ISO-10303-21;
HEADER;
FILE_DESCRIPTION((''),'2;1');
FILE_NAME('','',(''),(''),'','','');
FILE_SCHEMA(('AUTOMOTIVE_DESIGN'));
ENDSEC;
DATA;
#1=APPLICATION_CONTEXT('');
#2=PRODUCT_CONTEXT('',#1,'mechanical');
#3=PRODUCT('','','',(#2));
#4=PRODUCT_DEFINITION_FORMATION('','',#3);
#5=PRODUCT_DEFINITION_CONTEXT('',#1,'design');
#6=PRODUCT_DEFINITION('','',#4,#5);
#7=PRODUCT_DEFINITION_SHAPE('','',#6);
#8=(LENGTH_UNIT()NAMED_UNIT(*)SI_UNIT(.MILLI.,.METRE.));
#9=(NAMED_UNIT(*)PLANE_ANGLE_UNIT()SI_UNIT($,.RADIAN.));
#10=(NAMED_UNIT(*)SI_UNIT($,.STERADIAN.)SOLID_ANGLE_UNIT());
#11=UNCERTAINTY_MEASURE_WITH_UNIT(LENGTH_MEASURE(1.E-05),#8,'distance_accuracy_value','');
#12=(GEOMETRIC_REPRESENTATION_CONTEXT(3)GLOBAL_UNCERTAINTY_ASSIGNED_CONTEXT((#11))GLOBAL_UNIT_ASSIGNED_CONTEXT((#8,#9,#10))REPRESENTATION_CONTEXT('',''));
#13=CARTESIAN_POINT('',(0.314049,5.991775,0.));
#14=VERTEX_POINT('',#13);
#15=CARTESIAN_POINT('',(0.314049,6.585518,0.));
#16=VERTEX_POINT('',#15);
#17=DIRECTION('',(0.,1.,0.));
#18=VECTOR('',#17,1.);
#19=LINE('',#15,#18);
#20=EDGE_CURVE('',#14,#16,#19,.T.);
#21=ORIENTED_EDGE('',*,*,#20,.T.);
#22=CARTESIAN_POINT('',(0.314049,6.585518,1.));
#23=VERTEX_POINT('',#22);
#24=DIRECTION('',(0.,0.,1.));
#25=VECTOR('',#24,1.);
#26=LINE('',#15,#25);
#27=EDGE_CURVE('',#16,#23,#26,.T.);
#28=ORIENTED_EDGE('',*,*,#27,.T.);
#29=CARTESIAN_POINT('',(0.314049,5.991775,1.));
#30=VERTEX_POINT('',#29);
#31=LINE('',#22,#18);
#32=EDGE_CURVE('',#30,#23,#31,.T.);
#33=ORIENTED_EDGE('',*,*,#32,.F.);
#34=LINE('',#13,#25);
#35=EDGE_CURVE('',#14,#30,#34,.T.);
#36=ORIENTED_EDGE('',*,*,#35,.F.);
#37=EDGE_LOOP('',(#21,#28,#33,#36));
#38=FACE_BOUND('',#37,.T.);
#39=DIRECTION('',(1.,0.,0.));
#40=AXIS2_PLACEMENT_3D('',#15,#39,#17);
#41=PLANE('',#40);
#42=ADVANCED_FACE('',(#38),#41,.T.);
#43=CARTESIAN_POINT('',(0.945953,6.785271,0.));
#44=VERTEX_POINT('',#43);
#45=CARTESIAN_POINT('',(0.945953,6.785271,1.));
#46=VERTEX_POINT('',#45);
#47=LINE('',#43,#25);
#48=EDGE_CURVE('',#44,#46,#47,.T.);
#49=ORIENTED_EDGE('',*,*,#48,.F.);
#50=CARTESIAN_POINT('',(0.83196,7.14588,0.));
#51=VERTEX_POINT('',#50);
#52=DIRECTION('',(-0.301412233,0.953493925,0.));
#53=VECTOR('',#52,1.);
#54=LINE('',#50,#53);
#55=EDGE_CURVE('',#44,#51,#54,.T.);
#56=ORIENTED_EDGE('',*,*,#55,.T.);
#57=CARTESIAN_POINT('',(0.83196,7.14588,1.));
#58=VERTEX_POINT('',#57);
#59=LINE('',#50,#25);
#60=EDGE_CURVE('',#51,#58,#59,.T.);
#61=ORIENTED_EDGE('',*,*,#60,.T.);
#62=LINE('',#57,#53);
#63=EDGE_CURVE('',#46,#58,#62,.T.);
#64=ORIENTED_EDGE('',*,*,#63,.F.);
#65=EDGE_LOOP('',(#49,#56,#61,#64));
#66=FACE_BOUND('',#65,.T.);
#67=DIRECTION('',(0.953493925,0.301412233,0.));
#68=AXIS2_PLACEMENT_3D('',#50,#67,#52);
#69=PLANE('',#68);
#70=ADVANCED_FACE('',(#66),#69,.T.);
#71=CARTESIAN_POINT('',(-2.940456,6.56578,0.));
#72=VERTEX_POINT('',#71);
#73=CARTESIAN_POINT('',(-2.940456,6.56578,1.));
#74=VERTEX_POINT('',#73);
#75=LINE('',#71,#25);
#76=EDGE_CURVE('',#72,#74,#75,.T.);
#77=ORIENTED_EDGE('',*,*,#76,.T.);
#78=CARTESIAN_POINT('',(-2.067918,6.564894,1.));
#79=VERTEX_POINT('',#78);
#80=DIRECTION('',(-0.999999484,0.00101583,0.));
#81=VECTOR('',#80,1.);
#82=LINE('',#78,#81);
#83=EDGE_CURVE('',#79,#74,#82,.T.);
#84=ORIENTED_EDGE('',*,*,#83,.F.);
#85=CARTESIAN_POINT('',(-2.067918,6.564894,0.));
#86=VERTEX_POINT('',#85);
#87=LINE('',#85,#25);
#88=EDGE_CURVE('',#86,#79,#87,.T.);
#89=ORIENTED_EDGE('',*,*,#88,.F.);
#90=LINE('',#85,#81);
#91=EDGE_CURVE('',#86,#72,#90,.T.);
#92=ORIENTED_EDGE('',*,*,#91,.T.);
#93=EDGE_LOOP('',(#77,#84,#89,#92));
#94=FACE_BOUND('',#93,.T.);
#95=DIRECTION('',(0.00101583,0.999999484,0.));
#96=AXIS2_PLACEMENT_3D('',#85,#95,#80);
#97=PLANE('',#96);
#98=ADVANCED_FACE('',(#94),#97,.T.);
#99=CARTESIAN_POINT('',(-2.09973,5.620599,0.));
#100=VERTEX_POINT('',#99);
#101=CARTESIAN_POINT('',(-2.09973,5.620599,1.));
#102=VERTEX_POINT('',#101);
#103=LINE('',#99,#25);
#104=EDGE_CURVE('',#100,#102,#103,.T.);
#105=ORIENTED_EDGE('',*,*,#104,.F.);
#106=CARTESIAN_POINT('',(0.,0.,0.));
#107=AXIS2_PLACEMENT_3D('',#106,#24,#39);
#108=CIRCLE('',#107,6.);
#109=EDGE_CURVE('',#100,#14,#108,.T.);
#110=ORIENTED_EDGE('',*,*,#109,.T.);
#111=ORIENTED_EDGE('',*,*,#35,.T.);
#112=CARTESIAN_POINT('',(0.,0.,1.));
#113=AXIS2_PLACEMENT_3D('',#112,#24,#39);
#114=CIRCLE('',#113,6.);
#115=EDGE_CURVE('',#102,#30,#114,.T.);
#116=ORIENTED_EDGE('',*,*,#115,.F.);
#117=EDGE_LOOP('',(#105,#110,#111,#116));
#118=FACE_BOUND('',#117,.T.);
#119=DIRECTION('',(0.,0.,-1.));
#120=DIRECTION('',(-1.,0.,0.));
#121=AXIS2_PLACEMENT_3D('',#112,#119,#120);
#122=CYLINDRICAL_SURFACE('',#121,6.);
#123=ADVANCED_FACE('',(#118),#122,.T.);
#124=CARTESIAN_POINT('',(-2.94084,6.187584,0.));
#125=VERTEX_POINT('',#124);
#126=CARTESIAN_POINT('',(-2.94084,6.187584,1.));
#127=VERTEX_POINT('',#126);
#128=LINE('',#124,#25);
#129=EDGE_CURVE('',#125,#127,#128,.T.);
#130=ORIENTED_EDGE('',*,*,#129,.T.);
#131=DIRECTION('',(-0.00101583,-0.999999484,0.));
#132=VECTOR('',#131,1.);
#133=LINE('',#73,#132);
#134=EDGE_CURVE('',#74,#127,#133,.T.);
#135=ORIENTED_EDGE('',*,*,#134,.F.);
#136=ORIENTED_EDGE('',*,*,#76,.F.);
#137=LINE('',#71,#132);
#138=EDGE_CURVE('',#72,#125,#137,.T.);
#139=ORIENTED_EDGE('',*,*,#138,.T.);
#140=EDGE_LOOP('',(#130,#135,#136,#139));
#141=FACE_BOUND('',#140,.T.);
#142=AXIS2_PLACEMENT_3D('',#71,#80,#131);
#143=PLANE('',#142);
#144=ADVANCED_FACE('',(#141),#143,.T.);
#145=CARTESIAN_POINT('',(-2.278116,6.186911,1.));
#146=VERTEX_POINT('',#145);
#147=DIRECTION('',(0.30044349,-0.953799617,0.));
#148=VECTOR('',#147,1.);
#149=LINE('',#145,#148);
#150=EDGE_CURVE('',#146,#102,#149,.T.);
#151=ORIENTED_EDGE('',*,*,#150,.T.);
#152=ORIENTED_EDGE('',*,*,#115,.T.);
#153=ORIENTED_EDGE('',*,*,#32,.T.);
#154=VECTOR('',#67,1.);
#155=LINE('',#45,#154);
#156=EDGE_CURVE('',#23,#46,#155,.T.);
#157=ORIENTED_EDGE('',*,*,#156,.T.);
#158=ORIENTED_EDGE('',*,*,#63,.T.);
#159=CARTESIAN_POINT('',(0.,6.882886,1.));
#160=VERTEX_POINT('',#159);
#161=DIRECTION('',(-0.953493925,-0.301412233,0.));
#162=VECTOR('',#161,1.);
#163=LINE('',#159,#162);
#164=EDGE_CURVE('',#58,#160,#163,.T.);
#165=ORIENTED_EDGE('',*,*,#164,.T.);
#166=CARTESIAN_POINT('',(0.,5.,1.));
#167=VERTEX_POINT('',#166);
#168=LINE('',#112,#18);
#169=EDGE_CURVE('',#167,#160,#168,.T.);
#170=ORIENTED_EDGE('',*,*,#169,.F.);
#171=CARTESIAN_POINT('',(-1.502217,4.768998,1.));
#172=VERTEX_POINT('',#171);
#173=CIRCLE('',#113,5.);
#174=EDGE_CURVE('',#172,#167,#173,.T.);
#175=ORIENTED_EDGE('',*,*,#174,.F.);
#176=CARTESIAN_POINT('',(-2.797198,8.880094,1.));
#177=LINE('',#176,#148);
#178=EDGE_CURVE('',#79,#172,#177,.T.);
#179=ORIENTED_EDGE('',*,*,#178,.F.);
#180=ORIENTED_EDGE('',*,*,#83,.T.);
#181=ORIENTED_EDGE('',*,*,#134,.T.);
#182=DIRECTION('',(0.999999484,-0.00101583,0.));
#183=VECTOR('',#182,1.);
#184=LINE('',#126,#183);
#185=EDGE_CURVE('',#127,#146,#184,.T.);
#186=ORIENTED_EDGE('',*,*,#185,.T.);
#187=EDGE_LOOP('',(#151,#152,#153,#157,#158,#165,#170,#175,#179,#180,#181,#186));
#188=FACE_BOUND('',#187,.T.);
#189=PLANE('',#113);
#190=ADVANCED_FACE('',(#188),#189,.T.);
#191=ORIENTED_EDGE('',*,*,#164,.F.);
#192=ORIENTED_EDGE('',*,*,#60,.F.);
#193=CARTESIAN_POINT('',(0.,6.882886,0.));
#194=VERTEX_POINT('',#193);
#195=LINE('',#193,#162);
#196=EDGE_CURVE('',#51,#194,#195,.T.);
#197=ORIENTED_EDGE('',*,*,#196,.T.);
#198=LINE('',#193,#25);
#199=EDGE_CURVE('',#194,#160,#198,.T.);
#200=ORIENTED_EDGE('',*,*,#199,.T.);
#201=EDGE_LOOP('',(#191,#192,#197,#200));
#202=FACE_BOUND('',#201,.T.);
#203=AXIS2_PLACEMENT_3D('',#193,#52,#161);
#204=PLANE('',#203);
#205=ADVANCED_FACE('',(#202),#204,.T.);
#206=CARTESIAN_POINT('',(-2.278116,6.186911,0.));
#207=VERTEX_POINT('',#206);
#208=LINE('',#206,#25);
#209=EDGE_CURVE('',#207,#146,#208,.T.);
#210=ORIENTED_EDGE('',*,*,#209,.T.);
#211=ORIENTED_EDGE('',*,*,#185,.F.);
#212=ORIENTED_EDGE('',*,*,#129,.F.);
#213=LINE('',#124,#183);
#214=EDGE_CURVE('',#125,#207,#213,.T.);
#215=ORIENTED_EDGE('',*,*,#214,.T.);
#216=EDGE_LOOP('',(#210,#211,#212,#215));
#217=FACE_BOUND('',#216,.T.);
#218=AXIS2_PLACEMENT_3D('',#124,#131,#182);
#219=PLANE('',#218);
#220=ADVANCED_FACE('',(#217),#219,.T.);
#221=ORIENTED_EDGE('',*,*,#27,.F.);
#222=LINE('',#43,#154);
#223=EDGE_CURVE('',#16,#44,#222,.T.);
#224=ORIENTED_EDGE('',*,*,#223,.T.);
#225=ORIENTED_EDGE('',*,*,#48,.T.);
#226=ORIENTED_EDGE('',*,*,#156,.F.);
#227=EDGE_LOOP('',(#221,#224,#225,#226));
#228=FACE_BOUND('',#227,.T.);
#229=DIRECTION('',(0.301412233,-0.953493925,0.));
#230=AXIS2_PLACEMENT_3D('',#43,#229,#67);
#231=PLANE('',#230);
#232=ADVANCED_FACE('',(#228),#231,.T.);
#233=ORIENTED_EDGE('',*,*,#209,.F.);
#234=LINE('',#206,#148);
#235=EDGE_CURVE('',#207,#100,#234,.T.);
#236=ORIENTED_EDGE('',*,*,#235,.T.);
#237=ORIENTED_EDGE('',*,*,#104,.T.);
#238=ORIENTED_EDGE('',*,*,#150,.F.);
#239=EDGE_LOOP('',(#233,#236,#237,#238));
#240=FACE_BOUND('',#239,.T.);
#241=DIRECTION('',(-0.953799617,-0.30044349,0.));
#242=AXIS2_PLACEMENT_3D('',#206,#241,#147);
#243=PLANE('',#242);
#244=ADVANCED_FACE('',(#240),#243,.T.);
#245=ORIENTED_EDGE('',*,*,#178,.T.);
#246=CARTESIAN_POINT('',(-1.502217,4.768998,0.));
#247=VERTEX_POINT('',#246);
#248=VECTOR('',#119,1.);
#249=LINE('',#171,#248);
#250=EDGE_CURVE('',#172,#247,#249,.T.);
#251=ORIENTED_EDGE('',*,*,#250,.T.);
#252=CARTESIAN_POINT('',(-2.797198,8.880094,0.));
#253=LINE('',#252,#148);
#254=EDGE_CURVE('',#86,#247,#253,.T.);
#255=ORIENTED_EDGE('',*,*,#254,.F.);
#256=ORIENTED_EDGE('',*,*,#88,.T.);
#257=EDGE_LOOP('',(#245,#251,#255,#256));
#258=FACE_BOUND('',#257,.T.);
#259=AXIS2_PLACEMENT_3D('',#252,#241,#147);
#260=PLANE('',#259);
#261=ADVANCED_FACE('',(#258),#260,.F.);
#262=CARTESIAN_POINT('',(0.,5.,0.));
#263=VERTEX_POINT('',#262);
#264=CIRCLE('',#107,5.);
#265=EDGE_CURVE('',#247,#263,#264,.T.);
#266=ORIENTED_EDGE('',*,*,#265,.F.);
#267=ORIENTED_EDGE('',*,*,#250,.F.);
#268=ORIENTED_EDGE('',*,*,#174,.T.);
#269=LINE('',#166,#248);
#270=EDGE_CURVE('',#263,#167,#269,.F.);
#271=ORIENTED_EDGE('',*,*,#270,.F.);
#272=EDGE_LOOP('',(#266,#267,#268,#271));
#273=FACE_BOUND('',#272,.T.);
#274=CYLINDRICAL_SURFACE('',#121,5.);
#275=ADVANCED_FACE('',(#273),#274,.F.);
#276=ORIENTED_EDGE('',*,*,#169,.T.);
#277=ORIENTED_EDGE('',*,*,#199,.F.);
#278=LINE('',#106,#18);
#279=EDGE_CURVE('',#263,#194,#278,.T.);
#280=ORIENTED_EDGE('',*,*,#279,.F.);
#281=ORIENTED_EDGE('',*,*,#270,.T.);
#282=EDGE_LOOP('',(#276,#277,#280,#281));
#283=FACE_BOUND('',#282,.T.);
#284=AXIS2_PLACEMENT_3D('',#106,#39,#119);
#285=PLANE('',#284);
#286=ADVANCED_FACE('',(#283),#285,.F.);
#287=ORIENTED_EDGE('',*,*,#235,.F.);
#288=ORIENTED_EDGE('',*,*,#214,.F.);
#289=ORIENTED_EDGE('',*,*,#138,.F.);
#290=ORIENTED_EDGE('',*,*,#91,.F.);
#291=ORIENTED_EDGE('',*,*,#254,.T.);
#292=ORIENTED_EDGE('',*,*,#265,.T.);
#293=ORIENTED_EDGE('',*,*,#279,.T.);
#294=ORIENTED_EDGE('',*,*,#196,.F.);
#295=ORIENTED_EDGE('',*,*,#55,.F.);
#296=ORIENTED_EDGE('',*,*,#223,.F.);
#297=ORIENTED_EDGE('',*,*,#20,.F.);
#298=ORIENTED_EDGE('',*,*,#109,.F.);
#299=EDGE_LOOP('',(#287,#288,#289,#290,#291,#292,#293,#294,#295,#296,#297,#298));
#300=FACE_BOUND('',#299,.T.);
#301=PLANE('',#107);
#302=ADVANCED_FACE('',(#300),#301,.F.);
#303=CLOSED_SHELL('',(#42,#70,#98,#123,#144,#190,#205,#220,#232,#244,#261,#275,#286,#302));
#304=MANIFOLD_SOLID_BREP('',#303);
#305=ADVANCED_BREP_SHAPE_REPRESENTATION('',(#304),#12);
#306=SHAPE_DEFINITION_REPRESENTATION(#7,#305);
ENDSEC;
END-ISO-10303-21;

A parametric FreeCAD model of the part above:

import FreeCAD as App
import Part
import Sketcher


def add_polygon(sketch, points):
    """Adds a closed chain of lines whose ends are joined by coincident constraints."""
    first, n = sketch.GeometryCount, len(points)
    for a, b in zip(points, points[1:] + points[:1]):
        sketch.addGeometry(Part.LineSegment(App.Vector(*a, 0), App.Vector(*b, 0)), False)
    for i in range(n):
        sketch.addConstraint(Sketcher.Constraint("Coincident", first + i, 2, first + (i + 1) % n, 1))

doc = App.newDocument("Part")
body = doc.addObject("PartDesign::Body", "Body")

# Sketch on XY plane
sketch1 = doc.addObject("Sketcher::SketchObject", "Sketch")
body.addObject(sketch1)
sketch1.AttachmentSupport = (doc.XY_Plane, [""])
sketch1.MapMode = "FlatFace"
sketch1.addGeometry(Part.Circle(App.Vector(0, 0, 0), App.Vector(0, 0, 1), 6), False)
sketch1.addGeometry(Part.Circle(App.Vector(0, 0, 0), App.Vector(0, 0, 1), 5), False)
sketch1.addConstraint(Sketcher.Constraint("Coincident", 0, 3, -1, 1))
sketch1.addConstraint(Sketcher.Constraint("Coincident", 1, 3, -1, 1))
sketch1.addConstraint(Sketcher.Constraint("Diameter", 0, 12.0))
sketch1.addConstraint(Sketcher.Constraint("Diameter", 1, 10.0))
pad1 = doc.addObject("PartDesign::Pad", "Pad")
body.addObject(pad1)
pad1.Profile = sketch1
pad1.Length = 1

# Sketch on XY plane
sketch2 = doc.addObject("Sketcher::SketchObject", "Sketch001")
body.addObject(sketch2)
sketch2.AttachmentSupport = (doc.XY_Plane, [""])
sketch2.MapMode = "FlatFace"
sketch2.AttachmentOffset = App.Placement(App.Vector(0, 0, 1), App.Rotation())
add_polygon(sketch2, [(0, 0), (0, 9.552056), (-2.797198, 8.880094)])  # lines 0-2
sketch2.addConstraint(Sketcher.Constraint("Vertical", 0))
sketch2.addConstraint(Sketcher.Constraint("Coincident", 2, 2, -1, 1))
sketch2.addConstraint(Sketcher.Constraint("DistanceX", 1, 2, -1, 1, 2.797198))
sketch2.addConstraint(Sketcher.Constraint("Distance", 2, 9.310231))
sketch2.addConstraint(Sketcher.Constraint("DistanceY", 0, 1, 0, 2, 9.552056))
pocket1 = doc.addObject("PartDesign::Pocket", "Pocket")
body.addObject(pocket1)
pocket1.Profile = sketch2
pocket1.Length = 1

# Sketch on XY plane
sketch3 = doc.addObject("Sketcher::SketchObject", "Sketch002")
body.addObject(sketch3)
sketch3.AttachmentSupport = (doc.XY_Plane, [""])
sketch3.MapMode = "FlatFace"
sketch3.AttachmentOffset = App.Placement(App.Vector(0, 0, 1), App.Rotation())
add_polygon(sketch3, [(0, 6.882886), (0, 6), (0.314049, 5.991775), (0.314049, 6.585518), (0.945953, 6.785271), (0.83196, 7.14588)])  # lines 0-5
add_polygon(sketch3, [(-2.09973, 5.620599), (-1.802661, 5.722798), (-2.067918, 6.564894), (-2.940456, 6.56578), (-2.94084, 6.187584), (-2.278116, 6.186911)])  # lines 6-11
sketch3.addConstraint(Sketcher.Constraint("Vertical", 0))
sketch3.addConstraint(Sketcher.Constraint("Vertical", 2))
sketch3.addConstraint(Sketcher.Constraint("PointOnObject", 0, 2, -2))
sketch3.addConstraint(Sketcher.Constraint("Perpendicular", 3, 4))
sketch3.addConstraint(Sketcher.Constraint("Perpendicular", 4, 5))
sketch3.addConstraint(Sketcher.Constraint("Perpendicular", 8, 9))
sketch3.addConstraint(Sketcher.Constraint("Perpendicular", 9, 10))
sketch3.addConstraint(Sketcher.Constraint("Parallel", 7, 11))
sketch3.addConstraint(Sketcher.Constraint("Equal", 1, 6))
sketch3.addConstraint(Sketcher.Constraint("Equal", 5, 8))
sketch3.addConstraint(Sketcher.Constraint("Equal", 4, 9))
sketch3.addConstraint(Sketcher.Constraint("Equal", 3, 10))
sketch3.addConstraint(Sketcher.Constraint("DistanceY", -1, 1, 0, 2, 6.0))
sketch3.addConstraint(Sketcher.Constraint("DistanceY", -1, 1, 11, 2, 5.620599))
sketch3.addConstraint(Sketcher.Constraint("DistanceY", 11, 2, 6, 2, 0.102199))
sketch3.addConstraint(Sketcher.Constraint("Distance", 5, 0.872538))
sketch3.addConstraint(Sketcher.Constraint("DistanceY", 0, 2, 0, 1, 0.882886))
sketch3.addConstraint(Sketcher.Constraint("DistanceY", 2, 1, 2, 2, 0.593743))
sketch3.addConstraint(Sketcher.Constraint("DistanceX", -1, 1, 1, 2, 0.314049))
sketch3.addConstraint(Sketcher.Constraint("DistanceY", -1, 1, 2, 2, 6.585518))
sketch3.addConstraint(Sketcher.Constraint("DistanceY", -1, 1, 3, 2, 6.785271))
sketch3.addConstraint(Sketcher.Constraint("DistanceX", 6, 2, -1, 1, 1.802661))
sketch3.addConstraint(Sketcher.Constraint("DistanceX", 7, 2, -1, 1, 2.067918))
sketch3.addConstraint(Sketcher.Constraint("DistanceY", -1, 1, 8, 2, 6.56578))
pad2 = doc.addObject("PartDesign::Pad", "Pad001")
body.addObject(pad2)
pad2.Profile = sketch3
pad2.Length = 1
pad2.Reversed = True

doc.recompute()
